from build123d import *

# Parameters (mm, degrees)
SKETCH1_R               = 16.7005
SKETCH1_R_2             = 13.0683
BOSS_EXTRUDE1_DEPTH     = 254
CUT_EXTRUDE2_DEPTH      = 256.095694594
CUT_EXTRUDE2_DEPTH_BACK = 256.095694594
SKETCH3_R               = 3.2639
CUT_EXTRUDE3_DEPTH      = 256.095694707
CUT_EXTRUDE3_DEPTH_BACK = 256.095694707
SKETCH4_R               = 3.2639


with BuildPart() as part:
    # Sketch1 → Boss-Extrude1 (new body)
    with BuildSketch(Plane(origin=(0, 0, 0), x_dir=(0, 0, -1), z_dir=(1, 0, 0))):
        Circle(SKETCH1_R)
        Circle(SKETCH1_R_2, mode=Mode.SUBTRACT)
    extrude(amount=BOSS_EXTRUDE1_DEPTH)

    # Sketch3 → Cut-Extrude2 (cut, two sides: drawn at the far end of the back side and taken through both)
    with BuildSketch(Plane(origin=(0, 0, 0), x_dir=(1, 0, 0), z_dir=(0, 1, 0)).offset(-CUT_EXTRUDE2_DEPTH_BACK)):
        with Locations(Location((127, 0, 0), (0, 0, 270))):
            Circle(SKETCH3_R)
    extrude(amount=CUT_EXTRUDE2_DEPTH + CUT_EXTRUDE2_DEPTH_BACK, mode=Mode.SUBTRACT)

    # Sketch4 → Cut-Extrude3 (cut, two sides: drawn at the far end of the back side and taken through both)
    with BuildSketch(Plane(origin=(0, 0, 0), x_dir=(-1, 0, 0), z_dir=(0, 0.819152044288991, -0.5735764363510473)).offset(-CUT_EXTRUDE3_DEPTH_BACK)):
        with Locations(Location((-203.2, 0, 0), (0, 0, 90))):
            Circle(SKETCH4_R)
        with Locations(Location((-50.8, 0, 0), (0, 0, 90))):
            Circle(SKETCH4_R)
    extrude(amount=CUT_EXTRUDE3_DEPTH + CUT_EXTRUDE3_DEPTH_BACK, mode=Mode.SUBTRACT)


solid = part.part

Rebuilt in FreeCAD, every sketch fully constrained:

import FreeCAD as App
import Part
import Sketcher

V = App.Vector
Q = App.Units.Quantity

doc = App.newDocument("Part")
body = doc.addObject("PartDesign::Body", "Body")

sketch1 = body.newObject("Sketcher::SketchObject", "Sketch")
sketch1.AttachmentSupport = (doc.getObject("YZ_Plane"), [""])
sketch1.MapMode = "FlatFace"
sketch1.addGeometry([
    Part.Circle(V(0, 0, 0), V(0, 0, 1), 16.7005),
    Part.Circle(V(0, 0, 0), V(0, 0, 1), 13.0683),
], False)
sketch1.addConstraint([
    Sketcher.Constraint("Coincident", 0, 3, -1, 1),
    Sketcher.Constraint("Coincident", 1, 3, -1, 1),
    Sketcher.Constraint("Diameter", 0, Q("1.315 in")),
    Sketcher.Constraint("Diameter", 1, Q("1.029 in")),
])
pad1 = body.newObject("PartDesign::Pad", "Pad")
pad1.Profile = sketch1
pad1.Length = Q("10 in")

sketch2 = body.newObject("Sketcher::SketchObject", "Sketch001")
sketch2.AttachmentSupport = (doc.getObject("XZ_Plane"), [""])
sketch2.MapMode = "FlatFace"
sketch2.addGeometry(Part.Circle(V(127, 0, 0), V(0, 0, 1), 3.2639), False)
sketch2.addConstraint([
    Sketcher.Constraint("PointOnObject", 0, 3, -1),
    Sketcher.Constraint("Diameter", 0, Q("0.257 in")),
    Sketcher.Constraint("DistanceX", -1, 1, 0, 3, Q("5 in")),
])
pocket1 = body.newObject("PartDesign::Pocket", "Pocket")
pocket1.Profile = sketch2
pocket1.Type = "ThroughAll"
pocket1.Midplane = True

sketch3 = body.newObject("Sketcher::SketchObject", "Sketch002")
sketch3.Placement = App.Placement(V(0, 0, 0), App.Rotation(V(-1, 0, 0), V(0, 0.573576436, 0.819152044), V(0, 0.819152044, -0.573576436), "ZXY"))
sketch3.addGeometry([
    Part.Circle(V(-203.2, 0, 0), V(0, 0, 1), 3.2639),
    Part.Circle(V(-50.8, 0, 0), V(0, 0, 1), 3.2639),
], False)
sketch3.addConstraint([
    Sketcher.Constraint("Equal", 0, 1),
    Sketcher.Constraint("PointOnObject", 0, 3, -1),
    Sketcher.Constraint("PointOnObject", 1, 3, -1),
    Sketcher.Constraint("Diameter", 0, Q("0.257 in")),
    Sketcher.Constraint("DistanceX", 0, 3, -1, 1, Q("8 in")),
    Sketcher.Constraint("DistanceX", 1, 3, -1, 1, Q("2 in")),
])
pocket2 = body.newObject("PartDesign::Pocket", "Pocket001")
pocket2.Profile = sketch3
pocket2.Type = "ThroughAll"
pocket2.Midplane = True

doc.recompute()
